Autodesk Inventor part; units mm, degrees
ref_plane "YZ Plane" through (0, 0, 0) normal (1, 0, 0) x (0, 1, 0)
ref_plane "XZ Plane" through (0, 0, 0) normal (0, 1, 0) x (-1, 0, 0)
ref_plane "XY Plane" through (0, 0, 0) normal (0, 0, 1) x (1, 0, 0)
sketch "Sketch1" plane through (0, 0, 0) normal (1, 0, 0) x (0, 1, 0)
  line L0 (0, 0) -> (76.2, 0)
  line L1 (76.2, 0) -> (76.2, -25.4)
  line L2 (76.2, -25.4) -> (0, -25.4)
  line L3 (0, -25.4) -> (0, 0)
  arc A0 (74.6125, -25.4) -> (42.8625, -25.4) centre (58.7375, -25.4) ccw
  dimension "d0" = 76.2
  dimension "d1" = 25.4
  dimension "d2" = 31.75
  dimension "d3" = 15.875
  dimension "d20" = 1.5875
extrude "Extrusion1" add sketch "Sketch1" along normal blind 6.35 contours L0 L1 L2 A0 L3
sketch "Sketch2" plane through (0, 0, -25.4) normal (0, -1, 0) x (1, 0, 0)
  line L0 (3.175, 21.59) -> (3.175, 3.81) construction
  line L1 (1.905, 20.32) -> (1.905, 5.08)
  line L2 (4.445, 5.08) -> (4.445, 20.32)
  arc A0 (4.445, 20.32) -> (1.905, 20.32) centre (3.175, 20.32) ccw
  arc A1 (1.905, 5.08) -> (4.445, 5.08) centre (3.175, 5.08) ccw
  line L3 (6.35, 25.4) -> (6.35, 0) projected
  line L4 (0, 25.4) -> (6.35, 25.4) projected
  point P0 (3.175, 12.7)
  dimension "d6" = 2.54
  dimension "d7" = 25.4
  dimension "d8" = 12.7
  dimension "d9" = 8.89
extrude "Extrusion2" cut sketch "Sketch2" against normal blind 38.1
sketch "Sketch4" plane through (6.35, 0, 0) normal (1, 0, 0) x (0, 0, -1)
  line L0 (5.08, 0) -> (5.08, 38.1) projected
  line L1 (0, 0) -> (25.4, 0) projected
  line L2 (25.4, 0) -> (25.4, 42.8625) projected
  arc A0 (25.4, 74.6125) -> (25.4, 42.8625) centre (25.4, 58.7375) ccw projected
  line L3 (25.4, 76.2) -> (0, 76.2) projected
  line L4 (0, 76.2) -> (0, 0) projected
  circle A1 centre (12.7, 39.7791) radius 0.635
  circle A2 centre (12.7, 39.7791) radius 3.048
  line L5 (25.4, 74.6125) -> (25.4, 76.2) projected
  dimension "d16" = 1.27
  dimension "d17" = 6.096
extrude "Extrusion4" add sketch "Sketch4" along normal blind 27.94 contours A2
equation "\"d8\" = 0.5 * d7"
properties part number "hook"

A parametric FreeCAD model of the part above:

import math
import FreeCAD as App
import Part
import Sketcher
from FreeCAD import Vector
Q = App.Units.Quantity

doc = App.newDocument("Part")
body = doc.addObject("PartDesign::Body", "Body")

sketch1 = doc.addObject("Sketcher::SketchObject", "Sketch")
body.addObject(sketch1)
sketch1.AttachmentSupport = (doc.YZ_Plane, [""])
sketch1.MapMode = "FlatFace"
sketch1.addGeometry([
    Part.LineSegment(Vector(76.2, 0, 0), Vector(0, 0, 0)),
    Part.LineSegment(Vector(0, 0, 0), Vector(0, -25.4, 0)),
    Part.LineSegment(Vector(0, -25.4, 0), Vector(42.9, -25.4, 0)),
    Part.ArcOfCircle(Part.Circle(Vector(58.7, -25.4, 0), Vector(0, 0, 1), 15.9), math.radians(0), math.radians(180)),
    Part.LineSegment(Vector(74.6, -25.4, 0), Vector(76.2, -25.4, 0)),
    Part.LineSegment(Vector(76.2, -25.4, 0), Vector(76.2, 0, 0)),
], False)
sketch1.addConstraint([
    Sketcher.Constraint("Coincident", 0, 2, 1, 1),
    Sketcher.Constraint("Coincident", 1, 2, 2, 1),
    Sketcher.Constraint("Coincident", 2, 2, 3, 2),
    Sketcher.Constraint("Coincident", 3, 1, 4, 1),
    Sketcher.Constraint("Coincident", 4, 2, 5, 1),
    Sketcher.Constraint("Coincident", 5, 2, 0, 1),
    Sketcher.Constraint("Horizontal", 0),
    Sketcher.Constraint("Vertical", 1),
    Sketcher.Constraint("Horizontal", 2),
    Sketcher.Constraint("Horizontal", 4),
    Sketcher.Constraint("Vertical", 5),
    Sketcher.Constraint("Coincident", 0, 2, -1, 1),
    Sketcher.Constraint("Horizontal", 3, 3, 1, 2),
    Sketcher.Constraint("Horizontal", 2, 2, 3, 1),
    Sketcher.Constraint("DistanceX", 0, 2, 0, 1, Q("3 in")),
    Sketcher.Constraint("DistanceY", 1, 2, 1, 1, Q("1 in")),
    Sketcher.Constraint("Radius", 3, Q("0.625 in")),
    Sketcher.Constraint("DistanceX", 4, 1, 4, 2, Q("0.0625 in")),
])
pad1 = doc.addObject("PartDesign::Pad", "Pad")
body.addObject(pad1)
pad1.Profile = sketch1
pad1.Length = Q("0.25 in")

sketch2 = doc.addObject("Sketcher::SketchObject", "Sketch001")
body.addObject(sketch2)
sketch2.AttachmentSupport = (doc.XZ_Plane, [""])
sketch2.MapMode = "FlatFace"
sketch2.addGeometry([
    Part.ArcOfCircle(Part.Circle(Vector(3.2, -5.1, 0), Vector(0, 0, 1), 1.3), math.radians(0), math.radians(180)),
    Part.LineSegment(Vector(1.9, -5.1, 0), Vector(1.9, -20.3, 0)),
    Part.ArcOfCircle(Part.Circle(Vector(3.2, -20.3, 0), Vector(0, 0, 1), 1.3), math.radians(180), math.radians(360)),
    Part.LineSegment(Vector(4.4, -20.3, 0), Vector(4.4, -5.1, 0)),
], False)
sketch2.addConstraint([
    Sketcher.Constraint("Tangent", 0, 2, 1, 1),
    Sketcher.Constraint("Tangent", 1, 2, 2, 1),
    Sketcher.Constraint("Tangent", 2, 2, 3, 1),
    Sketcher.Constraint("Tangent", 3, 2, 0, 1),
    Sketcher.Constraint("Vertical", 1),
    Sketcher.Constraint("Vertical", 3),
    Sketcher.Constraint("Radius", 0, Q("0.05 in")),
    Sketcher.Constraint("DistanceY", 1, 2, 1, 1, Q("0.6 in")),
    Sketcher.Constraint("DistanceY", 0, 3, -1, 1, Q("0.2 in")),
    Sketcher.Constraint("DistanceX", -1, 1, 0, 3, Q("0.125 in")),
])
pocket1 = doc.addObject("PartDesign::Pocket", "Pocket")
body.addObject(pocket1)
pocket1.Profile = sketch2
pocket1.Length = Q("1.5 in")

sketch3 = doc.addObject("Sketcher::SketchObject", "Sketch002")
body.addObject(sketch3)
sketch3.AttachmentSupport = (doc.YZ_Plane, [""])
sketch3.MapMode = "FlatFace"
sketch3.AttachmentOffset = App.Placement(Vector(0, 0, 0.25 * 25.4), App.Rotation())
sketch3.addGeometry([
    Part.Circle(Vector(39.8, -12.7, 0), Vector(0, 0, 1), 3),
    Part.Circle(Vector(39.8, -12.7, 0), Vector(0, 0, 1), 0.6),
], False)
sketch3.addConstraint([
    Sketcher.Constraint("Coincident", 1, 3, 0, 3),
    Sketcher.Constraint("Diameter", 0, Q("0.24 in")),
    Sketcher.Constraint("Diameter", 1, Q("0.05 in")),
    Sketcher.Constraint("DistanceY", 0, 3, -1, 1, Q("0.5 in")),
    Sketcher.Constraint("DistanceX", -1, 1, 0, 3, Q("1.5661 in")),
])
pad2 = doc.addObject("PartDesign::Pad", "Pad001")
body.addObject(pad2)
pad2.Profile = sketch3
pad2.Length = Q("1.1 in")

doc.recompute()
